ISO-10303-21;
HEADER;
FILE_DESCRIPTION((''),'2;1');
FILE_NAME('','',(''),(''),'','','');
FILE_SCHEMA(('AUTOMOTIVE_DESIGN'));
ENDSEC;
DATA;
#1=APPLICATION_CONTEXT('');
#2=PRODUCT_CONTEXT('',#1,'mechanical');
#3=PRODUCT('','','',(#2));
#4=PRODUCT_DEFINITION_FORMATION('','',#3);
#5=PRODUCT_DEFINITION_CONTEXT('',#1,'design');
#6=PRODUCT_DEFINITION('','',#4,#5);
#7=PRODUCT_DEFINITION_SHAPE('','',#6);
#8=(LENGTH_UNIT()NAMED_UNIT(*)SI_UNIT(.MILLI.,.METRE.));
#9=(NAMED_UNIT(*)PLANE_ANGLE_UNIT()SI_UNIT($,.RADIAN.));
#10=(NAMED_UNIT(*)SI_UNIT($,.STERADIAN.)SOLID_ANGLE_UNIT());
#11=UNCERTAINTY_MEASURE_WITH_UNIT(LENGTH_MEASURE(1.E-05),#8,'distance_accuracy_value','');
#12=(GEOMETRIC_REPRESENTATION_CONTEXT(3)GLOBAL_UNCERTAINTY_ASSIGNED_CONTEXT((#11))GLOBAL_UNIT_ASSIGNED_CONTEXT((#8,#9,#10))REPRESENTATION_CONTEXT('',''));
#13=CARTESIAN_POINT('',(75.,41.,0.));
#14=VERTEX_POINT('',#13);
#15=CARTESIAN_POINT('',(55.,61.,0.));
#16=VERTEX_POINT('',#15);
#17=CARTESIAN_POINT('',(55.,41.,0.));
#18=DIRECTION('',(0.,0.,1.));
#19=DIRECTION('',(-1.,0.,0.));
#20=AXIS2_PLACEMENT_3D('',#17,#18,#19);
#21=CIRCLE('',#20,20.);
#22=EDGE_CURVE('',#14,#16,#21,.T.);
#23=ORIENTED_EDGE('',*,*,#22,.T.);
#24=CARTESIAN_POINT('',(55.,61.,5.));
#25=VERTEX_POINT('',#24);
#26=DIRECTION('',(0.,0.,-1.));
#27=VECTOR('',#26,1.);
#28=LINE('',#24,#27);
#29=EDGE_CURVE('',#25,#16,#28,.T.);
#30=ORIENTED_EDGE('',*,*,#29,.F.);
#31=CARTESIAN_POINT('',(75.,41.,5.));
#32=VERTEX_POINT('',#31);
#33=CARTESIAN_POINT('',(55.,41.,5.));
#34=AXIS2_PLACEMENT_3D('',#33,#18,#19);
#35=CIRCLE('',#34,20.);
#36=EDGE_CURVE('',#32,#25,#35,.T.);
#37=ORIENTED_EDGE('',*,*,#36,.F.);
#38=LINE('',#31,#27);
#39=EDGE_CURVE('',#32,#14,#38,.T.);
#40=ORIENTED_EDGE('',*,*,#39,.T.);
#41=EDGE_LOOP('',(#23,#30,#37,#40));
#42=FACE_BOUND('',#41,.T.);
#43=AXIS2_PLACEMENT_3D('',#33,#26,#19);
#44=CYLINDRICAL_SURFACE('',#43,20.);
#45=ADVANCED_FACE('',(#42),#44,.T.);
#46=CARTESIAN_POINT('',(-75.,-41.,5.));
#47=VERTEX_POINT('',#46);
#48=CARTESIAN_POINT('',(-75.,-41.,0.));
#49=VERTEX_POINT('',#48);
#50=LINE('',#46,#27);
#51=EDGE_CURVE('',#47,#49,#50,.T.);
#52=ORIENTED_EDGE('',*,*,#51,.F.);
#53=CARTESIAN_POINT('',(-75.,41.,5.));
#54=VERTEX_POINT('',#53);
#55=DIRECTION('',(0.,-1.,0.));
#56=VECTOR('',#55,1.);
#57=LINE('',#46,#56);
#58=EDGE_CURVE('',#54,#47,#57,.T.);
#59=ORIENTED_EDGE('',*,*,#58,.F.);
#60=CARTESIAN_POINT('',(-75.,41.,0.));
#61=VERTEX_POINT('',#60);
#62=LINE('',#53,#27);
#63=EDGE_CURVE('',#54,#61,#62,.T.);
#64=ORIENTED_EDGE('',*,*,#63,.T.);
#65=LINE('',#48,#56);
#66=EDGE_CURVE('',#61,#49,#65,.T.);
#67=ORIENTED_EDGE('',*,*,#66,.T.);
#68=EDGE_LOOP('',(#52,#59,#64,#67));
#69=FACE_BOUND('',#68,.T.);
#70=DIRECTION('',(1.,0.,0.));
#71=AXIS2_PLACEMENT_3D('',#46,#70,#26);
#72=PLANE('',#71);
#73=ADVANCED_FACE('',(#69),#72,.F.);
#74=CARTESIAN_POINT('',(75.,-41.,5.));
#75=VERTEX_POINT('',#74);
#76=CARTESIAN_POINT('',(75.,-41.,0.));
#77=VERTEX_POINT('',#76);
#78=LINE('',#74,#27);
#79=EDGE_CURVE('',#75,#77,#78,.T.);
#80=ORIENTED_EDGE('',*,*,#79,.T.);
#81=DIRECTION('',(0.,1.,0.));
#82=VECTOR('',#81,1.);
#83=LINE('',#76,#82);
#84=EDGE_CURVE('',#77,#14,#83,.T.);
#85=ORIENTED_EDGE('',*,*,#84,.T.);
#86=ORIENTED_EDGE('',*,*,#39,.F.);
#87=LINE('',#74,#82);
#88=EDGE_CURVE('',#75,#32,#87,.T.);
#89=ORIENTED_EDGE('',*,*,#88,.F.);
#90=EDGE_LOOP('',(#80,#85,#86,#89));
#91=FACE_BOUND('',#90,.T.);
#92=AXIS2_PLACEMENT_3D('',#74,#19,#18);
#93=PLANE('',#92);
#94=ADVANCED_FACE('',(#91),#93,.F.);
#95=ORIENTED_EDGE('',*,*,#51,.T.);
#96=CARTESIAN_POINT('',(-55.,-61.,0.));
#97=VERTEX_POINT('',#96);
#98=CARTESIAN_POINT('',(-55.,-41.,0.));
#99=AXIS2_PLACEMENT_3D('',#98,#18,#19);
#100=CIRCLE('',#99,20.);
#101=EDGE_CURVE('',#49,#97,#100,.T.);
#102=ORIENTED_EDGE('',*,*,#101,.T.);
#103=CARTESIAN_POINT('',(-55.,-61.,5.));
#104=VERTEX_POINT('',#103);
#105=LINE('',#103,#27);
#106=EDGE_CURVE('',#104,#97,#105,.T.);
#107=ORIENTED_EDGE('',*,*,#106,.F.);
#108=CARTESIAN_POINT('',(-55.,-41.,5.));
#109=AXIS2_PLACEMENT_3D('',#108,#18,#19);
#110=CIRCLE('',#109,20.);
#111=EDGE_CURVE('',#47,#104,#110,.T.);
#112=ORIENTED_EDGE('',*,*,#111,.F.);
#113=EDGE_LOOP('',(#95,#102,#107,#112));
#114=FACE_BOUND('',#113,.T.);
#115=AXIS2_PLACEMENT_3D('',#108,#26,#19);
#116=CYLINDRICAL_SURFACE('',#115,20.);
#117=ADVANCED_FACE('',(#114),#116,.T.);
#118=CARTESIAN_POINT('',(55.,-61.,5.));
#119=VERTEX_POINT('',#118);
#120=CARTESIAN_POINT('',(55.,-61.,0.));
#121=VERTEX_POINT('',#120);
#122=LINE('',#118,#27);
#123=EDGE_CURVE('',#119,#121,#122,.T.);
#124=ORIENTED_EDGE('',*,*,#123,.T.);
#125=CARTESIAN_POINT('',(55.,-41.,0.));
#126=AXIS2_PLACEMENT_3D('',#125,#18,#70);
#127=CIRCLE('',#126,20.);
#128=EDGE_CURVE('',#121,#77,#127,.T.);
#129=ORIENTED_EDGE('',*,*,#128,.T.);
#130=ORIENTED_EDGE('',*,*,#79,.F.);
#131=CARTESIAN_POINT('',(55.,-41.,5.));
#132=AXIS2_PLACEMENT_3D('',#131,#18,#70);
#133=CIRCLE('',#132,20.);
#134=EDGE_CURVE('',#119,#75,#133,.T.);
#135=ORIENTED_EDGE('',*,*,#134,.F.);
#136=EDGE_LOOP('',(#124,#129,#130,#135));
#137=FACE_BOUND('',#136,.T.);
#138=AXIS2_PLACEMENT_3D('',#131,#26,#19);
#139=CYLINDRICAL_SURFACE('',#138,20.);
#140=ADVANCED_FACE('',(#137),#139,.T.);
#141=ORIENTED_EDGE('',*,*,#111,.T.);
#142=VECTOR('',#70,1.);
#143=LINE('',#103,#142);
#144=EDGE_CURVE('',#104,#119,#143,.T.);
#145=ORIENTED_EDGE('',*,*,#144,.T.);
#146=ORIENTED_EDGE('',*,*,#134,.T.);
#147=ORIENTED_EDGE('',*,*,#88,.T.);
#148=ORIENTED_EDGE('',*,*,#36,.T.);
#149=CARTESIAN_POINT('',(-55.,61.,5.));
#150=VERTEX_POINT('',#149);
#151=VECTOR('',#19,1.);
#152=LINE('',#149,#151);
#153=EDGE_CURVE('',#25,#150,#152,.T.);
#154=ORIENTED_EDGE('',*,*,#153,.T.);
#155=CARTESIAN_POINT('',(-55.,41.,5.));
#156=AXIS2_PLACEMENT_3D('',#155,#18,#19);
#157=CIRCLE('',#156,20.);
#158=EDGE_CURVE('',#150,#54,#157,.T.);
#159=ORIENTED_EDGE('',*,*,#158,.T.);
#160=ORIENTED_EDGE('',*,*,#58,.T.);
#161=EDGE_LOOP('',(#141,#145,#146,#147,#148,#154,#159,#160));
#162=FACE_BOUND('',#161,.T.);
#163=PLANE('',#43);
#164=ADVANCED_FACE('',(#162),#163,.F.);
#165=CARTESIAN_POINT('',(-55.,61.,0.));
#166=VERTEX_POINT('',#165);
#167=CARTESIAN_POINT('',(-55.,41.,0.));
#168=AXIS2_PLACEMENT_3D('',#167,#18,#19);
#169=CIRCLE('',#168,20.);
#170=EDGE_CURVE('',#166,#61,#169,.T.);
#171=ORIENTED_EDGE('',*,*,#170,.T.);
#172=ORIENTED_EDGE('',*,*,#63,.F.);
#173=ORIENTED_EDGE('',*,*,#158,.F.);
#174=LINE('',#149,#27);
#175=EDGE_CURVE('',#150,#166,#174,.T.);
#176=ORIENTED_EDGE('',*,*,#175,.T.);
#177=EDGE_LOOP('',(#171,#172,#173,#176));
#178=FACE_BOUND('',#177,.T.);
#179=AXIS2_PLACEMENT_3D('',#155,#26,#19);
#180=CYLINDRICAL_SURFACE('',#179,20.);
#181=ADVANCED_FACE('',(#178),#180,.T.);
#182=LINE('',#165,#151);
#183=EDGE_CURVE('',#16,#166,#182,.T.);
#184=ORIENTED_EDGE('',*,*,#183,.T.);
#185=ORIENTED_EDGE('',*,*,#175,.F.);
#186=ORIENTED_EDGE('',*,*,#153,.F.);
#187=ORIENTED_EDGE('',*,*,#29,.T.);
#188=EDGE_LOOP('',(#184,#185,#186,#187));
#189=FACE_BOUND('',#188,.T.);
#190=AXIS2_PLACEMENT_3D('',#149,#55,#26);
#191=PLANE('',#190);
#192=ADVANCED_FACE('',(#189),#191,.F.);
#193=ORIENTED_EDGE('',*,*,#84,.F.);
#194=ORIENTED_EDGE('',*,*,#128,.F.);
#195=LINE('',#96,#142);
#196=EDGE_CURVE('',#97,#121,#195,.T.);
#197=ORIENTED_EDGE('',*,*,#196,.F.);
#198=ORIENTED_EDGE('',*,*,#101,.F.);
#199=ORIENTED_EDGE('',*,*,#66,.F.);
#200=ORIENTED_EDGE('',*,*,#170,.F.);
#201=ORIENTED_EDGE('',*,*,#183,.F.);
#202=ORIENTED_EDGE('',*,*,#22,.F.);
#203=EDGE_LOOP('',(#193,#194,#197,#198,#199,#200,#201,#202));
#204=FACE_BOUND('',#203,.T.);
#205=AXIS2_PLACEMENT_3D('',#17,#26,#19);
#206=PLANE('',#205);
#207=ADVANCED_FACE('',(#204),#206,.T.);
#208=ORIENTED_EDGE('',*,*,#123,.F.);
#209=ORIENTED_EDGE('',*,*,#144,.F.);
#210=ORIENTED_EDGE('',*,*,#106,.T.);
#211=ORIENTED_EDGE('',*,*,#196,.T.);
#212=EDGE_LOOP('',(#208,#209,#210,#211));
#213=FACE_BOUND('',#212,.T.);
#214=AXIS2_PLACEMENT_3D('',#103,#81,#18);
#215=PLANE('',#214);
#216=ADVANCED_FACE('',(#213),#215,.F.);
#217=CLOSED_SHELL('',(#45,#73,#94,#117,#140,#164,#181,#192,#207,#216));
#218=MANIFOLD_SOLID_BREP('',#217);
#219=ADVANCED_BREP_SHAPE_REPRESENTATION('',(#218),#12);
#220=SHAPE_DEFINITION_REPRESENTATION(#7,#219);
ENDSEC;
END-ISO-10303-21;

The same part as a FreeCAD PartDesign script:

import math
import FreeCAD as App
import Part
import Sketcher
from FreeCAD import Vector

doc = App.newDocument("Part")
params = doc.addObject("Spreadsheet::Sheet", "Params")
for row, (alias, value) in enumerate([
    ("sketch1_radius", "20 mm"),
    ("sketch1_width", "110 mm"),
    ("sketch1_height", "82 mm"),
    ("pad1_length", "5 mm"),
], start=1):
    params.set(f"A{row}", alias)
    params.set(f"B{row}", "=" + value)
    params.setAlias(f"B{row}", alias)

body = doc.addObject("PartDesign::Body", "Body")

# Sketch on XY plane
sketch1 = body.newObject("Sketcher::SketchObject", "Sketch")
sketch1.AttachmentSupport = (doc.getObject("XY_Plane"), [""])
sketch1.MapMode = "FlatFace"
sketch1.addGeometry(Part.LineSegment(Vector(-55, -61, 0), Vector(55, -61, 0)), False)
sketch1.addGeometry(Part.ArcOfCircle(Part.Circle(Vector(55, -41, 0), Vector(0, 0, 1), 20), math.radians(-90), math.radians(0)), False)
sketch1.addGeometry(Part.LineSegment(Vector(75, -41, 0), Vector(75, 41, 0)), False)
sketch1.addGeometry(Part.ArcOfCircle(Part.Circle(Vector(55, 41, 0), Vector(0, 0, 1), 20), math.radians(0), math.radians(90)), False)
sketch1.addGeometry(Part.LineSegment(Vector(55, 61, 0), Vector(-55, 61, 0)), False)
sketch1.addGeometry(Part.ArcOfCircle(Part.Circle(Vector(-55, 41, 0), Vector(0, 0, 1), 20), math.radians(90), math.radians(180)), False)
sketch1.addGeometry(Part.LineSegment(Vector(-75, 41, 0), Vector(-75, -41, 0)), False)
sketch1.addGeometry(Part.ArcOfCircle(Part.Circle(Vector(-55, -41, 0), Vector(0, 0, 1), 20), math.radians(180), math.radians(270)), False)
sketch1.addConstraint(Sketcher.Constraint("Tangent", 0, 2, 1, 1))
sketch1.addConstraint(Sketcher.Constraint("Tangent", 1, 2, 2, 1))
sketch1.addConstraint(Sketcher.Constraint("Tangent", 2, 2, 3, 1))
sketch1.addConstraint(Sketcher.Constraint("Tangent", 3, 2, 4, 1))
sketch1.addConstraint(Sketcher.Constraint("Tangent", 4, 2, 5, 1))
sketch1.addConstraint(Sketcher.Constraint("Tangent", 5, 2, 6, 1))
sketch1.addConstraint(Sketcher.Constraint("Tangent", 6, 2, 7, 1))
sketch1.addConstraint(Sketcher.Constraint("Tangent", 7, 2, 0, 1))
sketch1.addConstraint(Sketcher.Constraint("Horizontal", 0))
sketch1.addConstraint(Sketcher.Constraint("Vertical", 2))
sketch1.addConstraint(Sketcher.Constraint("Horizontal", 4))
sketch1.addConstraint(Sketcher.Constraint("Vertical", 6))
sketch1.addConstraint(Sketcher.Constraint("Equal", 1, 3))
sketch1.addConstraint(Sketcher.Constraint("Equal", 3, 5))
sketch1.addConstraint(Sketcher.Constraint("Equal", 5, 7))
sketch1.addConstraint(Sketcher.Constraint("Symmetric", 1, 3, 5, 3, -1, 1))
sketch1.addConstraint(Sketcher.Constraint("Radius", 1, 20.0))
sketch1.addConstraint(Sketcher.Constraint("DistanceX", 0, 1, 0, 2, 110.0))
sketch1.addConstraint(Sketcher.Constraint("DistanceY", 2, 1, 2, 2, 82.0))
sketch1.setExpression("Constraints[16]", "Params.sketch1_radius")
sketch1.setExpression("Constraints[17]", "Params.sketch1_width")
sketch1.setExpression("Constraints[18]", "Params.sketch1_height")
pad1 = body.newObject("PartDesign::Pad", "Pad")
pad1.Profile = sketch1
pad1.setExpression("Length", "Params.pad1_length")

doc.recompute()
